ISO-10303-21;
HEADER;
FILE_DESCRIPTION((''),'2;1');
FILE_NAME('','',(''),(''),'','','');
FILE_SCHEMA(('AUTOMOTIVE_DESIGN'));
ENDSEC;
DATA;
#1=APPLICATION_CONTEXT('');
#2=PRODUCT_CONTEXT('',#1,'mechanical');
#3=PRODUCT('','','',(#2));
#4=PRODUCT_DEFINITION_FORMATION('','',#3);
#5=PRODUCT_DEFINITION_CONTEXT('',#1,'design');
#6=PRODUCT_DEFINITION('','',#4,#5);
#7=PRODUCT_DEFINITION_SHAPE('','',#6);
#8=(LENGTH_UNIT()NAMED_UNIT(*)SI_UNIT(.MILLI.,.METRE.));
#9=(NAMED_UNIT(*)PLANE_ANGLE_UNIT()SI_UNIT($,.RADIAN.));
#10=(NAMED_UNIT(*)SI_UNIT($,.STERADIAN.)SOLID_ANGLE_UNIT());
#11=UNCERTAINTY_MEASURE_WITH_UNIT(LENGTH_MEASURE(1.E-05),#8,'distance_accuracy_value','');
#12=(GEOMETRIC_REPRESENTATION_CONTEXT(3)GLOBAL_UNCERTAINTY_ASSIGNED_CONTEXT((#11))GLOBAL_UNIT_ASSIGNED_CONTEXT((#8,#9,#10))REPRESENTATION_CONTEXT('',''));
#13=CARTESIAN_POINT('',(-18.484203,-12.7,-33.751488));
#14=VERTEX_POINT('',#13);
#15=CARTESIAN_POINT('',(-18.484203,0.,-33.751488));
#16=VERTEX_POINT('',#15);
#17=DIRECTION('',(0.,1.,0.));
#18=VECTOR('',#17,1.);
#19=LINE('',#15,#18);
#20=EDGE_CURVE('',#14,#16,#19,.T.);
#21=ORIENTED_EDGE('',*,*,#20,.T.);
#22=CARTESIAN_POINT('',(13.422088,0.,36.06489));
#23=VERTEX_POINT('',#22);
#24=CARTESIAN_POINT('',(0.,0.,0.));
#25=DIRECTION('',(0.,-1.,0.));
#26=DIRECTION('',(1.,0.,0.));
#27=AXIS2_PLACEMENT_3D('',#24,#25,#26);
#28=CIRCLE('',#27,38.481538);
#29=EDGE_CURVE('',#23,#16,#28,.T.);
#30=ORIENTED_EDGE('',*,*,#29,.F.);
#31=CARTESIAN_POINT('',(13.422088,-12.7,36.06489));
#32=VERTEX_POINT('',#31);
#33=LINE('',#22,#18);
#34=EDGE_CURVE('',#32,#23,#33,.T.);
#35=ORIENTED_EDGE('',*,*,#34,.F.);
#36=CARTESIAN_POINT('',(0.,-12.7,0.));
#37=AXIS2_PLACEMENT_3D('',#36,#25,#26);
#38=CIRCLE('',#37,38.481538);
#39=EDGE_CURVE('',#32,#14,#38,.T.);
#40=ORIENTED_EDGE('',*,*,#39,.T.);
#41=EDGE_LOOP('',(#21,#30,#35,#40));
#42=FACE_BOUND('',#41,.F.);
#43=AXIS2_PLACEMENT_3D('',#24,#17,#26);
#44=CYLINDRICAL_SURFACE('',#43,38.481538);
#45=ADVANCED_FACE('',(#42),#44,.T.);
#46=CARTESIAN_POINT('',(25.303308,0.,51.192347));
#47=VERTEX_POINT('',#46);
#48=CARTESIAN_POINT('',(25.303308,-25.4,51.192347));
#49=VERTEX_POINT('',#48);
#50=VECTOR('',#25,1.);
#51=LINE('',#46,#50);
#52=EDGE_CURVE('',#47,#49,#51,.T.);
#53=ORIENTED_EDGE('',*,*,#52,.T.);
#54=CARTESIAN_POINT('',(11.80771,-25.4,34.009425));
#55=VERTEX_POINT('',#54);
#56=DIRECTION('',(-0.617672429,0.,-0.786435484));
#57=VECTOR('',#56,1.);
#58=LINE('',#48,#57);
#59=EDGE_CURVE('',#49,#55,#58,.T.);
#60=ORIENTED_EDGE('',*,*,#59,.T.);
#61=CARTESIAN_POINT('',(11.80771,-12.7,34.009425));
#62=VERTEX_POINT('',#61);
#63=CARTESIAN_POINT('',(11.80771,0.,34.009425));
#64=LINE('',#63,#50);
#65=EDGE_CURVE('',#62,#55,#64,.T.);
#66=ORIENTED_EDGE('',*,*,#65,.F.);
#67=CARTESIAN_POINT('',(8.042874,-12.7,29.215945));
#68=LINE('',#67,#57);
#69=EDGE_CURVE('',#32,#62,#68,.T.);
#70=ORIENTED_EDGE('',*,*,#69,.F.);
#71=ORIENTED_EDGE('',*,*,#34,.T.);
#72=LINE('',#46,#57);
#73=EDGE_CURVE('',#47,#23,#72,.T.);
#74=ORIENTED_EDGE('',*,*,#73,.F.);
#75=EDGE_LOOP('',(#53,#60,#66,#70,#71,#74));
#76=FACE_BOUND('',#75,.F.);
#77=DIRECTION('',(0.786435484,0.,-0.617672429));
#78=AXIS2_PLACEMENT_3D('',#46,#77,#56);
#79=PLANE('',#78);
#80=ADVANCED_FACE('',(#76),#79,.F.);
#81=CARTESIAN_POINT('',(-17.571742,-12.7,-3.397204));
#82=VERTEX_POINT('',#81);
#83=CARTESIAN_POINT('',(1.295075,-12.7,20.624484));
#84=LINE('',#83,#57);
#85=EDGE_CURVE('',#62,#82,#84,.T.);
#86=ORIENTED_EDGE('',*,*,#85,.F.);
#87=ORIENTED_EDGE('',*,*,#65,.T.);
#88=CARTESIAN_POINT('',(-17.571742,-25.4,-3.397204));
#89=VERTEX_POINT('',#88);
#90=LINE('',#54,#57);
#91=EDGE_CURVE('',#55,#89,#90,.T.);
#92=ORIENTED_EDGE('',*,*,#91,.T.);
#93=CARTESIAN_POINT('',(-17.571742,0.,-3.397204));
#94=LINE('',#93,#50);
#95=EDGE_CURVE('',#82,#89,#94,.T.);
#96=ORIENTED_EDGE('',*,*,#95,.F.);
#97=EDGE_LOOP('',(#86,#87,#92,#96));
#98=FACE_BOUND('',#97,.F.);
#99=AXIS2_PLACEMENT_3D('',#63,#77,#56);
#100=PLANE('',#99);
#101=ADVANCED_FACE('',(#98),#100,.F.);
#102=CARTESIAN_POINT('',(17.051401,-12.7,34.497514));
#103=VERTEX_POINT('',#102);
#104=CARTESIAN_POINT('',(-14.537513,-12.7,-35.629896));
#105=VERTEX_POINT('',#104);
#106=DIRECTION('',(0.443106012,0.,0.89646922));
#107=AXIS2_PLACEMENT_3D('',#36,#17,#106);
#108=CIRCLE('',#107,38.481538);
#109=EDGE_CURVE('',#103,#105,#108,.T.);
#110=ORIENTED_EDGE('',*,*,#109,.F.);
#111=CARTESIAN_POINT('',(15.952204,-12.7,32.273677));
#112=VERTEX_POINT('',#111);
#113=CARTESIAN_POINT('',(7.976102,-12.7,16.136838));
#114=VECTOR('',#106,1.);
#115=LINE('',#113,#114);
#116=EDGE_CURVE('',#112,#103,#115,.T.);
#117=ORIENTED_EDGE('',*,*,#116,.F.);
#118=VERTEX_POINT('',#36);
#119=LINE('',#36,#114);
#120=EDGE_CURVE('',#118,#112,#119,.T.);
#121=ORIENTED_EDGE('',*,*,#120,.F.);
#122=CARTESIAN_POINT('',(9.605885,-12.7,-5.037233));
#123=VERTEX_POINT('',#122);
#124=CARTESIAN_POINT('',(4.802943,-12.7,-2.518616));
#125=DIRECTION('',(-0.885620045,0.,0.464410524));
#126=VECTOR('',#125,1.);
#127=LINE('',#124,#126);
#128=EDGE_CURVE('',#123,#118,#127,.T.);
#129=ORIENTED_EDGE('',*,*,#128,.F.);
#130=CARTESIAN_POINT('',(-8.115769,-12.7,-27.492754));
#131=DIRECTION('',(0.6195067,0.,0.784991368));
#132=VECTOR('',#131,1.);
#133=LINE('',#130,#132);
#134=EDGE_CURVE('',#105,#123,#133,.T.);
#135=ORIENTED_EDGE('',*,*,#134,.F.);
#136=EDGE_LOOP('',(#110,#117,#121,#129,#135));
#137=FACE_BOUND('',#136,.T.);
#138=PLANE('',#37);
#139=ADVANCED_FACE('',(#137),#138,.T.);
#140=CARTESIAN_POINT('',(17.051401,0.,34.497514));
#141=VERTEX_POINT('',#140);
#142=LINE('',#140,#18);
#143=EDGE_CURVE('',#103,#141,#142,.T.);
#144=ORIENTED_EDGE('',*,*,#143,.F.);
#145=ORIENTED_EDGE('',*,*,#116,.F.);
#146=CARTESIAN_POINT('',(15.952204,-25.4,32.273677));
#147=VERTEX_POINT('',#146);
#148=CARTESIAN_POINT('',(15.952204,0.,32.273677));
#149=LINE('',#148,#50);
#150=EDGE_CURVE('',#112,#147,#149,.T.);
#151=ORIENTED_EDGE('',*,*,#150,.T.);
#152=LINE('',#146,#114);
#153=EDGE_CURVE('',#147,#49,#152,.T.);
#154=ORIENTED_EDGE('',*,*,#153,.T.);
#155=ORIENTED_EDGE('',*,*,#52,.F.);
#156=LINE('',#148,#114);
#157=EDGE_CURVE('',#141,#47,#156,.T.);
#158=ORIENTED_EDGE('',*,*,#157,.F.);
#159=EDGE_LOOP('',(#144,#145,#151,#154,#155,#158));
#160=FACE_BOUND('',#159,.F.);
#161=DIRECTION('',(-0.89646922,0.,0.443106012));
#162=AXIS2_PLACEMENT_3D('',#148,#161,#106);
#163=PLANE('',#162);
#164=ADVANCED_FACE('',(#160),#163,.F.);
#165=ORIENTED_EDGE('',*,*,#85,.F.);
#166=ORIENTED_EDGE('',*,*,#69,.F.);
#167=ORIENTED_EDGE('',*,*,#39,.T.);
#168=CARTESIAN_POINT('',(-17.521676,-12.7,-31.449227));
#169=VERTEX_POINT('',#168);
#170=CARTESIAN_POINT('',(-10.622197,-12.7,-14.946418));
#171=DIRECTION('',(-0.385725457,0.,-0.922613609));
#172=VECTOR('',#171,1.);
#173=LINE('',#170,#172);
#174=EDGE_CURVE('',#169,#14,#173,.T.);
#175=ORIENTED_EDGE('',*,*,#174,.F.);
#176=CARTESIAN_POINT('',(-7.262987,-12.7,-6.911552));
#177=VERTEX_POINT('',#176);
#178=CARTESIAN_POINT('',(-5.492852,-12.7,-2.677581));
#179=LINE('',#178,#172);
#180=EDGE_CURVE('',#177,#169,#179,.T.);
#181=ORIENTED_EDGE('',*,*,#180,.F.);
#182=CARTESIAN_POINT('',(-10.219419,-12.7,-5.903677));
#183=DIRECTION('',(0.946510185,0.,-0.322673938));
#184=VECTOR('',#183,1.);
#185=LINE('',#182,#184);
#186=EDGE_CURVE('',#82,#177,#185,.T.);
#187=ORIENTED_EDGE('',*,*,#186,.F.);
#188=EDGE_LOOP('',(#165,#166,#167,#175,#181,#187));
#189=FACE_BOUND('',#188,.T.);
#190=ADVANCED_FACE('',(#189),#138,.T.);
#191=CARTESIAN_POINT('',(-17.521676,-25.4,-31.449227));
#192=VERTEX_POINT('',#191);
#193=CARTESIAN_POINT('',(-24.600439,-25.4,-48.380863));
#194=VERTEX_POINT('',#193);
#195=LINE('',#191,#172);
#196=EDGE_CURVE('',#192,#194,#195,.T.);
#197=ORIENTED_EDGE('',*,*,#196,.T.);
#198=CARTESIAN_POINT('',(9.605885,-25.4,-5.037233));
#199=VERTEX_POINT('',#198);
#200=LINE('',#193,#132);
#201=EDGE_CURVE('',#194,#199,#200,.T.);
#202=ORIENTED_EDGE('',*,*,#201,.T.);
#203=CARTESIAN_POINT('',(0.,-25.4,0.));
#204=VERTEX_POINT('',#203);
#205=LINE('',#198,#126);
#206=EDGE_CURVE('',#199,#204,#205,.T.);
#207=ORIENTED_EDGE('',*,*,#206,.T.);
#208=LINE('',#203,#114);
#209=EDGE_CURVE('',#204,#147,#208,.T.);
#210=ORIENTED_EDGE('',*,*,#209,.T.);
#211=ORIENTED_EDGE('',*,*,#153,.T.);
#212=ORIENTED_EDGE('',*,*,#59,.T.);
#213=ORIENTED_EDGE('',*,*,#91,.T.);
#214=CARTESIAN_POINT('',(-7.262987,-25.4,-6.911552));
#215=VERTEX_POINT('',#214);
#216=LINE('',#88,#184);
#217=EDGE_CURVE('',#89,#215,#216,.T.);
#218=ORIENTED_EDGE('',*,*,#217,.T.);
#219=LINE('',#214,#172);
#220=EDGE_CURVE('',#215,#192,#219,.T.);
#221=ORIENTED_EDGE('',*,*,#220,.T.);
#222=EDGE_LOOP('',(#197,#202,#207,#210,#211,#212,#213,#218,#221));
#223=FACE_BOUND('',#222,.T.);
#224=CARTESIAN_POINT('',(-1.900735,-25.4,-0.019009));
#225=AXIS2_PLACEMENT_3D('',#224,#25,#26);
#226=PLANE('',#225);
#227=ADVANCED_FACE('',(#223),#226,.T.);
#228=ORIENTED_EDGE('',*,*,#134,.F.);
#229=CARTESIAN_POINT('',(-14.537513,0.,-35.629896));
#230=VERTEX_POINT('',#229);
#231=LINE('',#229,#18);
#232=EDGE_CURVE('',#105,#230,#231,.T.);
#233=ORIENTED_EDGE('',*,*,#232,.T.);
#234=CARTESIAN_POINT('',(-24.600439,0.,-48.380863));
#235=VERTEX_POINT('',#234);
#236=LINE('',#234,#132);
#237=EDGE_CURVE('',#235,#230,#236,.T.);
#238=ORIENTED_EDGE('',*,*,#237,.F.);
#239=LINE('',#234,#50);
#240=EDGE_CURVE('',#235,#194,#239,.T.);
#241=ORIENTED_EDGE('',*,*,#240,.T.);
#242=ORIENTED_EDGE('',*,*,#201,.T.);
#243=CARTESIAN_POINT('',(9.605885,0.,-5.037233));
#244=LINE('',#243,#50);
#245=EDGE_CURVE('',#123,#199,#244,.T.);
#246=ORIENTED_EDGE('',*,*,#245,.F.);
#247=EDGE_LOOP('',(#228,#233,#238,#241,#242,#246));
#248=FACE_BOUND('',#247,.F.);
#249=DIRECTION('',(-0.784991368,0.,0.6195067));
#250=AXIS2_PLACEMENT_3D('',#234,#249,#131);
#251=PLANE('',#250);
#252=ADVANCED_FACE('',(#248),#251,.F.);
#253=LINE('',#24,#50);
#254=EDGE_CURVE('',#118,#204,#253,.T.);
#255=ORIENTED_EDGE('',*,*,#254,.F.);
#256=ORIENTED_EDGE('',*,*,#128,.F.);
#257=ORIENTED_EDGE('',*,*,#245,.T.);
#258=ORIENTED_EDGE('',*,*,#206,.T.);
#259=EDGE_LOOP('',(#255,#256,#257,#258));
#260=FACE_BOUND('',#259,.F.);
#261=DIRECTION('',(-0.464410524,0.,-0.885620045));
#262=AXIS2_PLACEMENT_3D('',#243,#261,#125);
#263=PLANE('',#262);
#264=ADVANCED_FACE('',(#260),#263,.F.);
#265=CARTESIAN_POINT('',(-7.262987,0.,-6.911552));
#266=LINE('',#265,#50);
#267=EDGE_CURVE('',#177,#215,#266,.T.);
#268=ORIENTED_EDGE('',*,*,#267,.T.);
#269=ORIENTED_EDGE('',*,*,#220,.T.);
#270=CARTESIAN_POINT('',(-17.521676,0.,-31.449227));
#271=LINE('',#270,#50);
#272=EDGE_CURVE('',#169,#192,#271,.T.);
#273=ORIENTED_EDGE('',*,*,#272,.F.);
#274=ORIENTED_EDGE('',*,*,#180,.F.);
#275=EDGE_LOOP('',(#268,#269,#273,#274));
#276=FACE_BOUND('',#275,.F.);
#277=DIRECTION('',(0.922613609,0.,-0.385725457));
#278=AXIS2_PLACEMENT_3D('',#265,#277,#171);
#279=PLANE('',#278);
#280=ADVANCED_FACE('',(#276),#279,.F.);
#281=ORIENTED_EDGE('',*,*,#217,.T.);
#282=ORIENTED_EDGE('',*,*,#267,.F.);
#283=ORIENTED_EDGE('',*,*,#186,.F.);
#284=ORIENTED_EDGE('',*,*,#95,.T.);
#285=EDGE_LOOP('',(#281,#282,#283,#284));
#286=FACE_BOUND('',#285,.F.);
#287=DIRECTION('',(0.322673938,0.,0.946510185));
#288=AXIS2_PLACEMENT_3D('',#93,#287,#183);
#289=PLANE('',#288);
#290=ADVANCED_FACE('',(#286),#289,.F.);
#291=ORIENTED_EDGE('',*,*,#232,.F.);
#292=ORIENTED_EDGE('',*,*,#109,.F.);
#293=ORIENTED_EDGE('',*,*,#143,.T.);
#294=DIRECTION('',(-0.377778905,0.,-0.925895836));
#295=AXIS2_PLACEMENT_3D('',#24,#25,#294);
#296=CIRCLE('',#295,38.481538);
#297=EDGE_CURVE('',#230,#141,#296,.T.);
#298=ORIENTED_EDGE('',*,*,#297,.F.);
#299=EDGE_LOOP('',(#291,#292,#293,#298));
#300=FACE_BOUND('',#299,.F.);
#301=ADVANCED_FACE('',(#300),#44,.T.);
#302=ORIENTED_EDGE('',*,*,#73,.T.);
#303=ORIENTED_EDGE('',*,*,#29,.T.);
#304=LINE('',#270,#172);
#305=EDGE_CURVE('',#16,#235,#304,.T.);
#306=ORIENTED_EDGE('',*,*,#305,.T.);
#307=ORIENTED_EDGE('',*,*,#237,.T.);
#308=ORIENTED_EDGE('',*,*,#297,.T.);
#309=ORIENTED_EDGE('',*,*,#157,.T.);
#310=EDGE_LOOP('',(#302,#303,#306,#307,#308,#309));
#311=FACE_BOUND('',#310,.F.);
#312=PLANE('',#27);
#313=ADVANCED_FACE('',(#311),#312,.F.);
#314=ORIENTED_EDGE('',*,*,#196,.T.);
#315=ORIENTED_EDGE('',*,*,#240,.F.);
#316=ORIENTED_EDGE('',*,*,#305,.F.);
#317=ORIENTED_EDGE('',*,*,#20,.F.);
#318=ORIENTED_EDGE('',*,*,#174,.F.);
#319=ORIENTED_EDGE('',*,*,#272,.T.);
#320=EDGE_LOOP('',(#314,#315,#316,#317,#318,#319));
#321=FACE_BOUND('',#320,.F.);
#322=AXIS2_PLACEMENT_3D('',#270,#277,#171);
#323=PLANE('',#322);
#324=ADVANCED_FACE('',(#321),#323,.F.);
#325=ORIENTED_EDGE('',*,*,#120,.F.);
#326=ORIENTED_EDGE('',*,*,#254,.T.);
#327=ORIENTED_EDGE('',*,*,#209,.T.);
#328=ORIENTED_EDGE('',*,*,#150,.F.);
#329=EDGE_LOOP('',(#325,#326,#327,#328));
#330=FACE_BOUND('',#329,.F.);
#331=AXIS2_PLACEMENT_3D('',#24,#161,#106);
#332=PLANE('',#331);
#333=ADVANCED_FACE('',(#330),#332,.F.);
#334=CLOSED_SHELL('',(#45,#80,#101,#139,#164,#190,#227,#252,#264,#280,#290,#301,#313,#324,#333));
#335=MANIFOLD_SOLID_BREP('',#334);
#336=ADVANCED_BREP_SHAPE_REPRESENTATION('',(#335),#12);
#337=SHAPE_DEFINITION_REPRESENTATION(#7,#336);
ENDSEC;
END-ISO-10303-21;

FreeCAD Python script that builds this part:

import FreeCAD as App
import Part
import Sketcher

V = App.Vector
Q = App.Units.Quantity

doc = App.newDocument("Part")
body = doc.addObject("PartDesign::Body", "Body")

# Sketch on XZ plane
sketch1 = body.newObject("Sketcher::SketchObject", "Sketch")
sketch1.AttachmentSupport = (doc.getObject("XZ_Plane"), [""])
sketch1.MapMode = "FlatFace"
sketch1.addGeometry([
    Part.LineSegment(V(0, 0, 0), V(15.952204, 32.273677, 0)),  # 0
    Part.LineSegment(V(15.952204, 32.273677, 0), V(25.303308, 51.192347, 0)),  # 1
    Part.LineSegment(V(25.303308, 51.192347, 0), V(11.80771, 34.009425, 0)),  # 2
    Part.LineSegment(V(11.80771, 34.009425, 0), V(-17.571742, -3.397204, 0)),  # 3
    Part.LineSegment(V(-17.571742, -3.397204, 0), V(-7.262987, -6.911552, 0)),  # 4
    Part.LineSegment(V(-7.262987, -6.911552, 0), V(-17.521676, -31.449227, 0)),  # 5
    Part.LineSegment(V(-17.521676, -31.449227, 0), V(-24.600439, -48.380863, 0)),  # 6
    Part.LineSegment(V(-24.600439, -48.380863, 0), V(9.605885, -5.037233, 0)),  # 7
    Part.LineSegment(V(9.605885, -5.037233, 0), V(0, 0, 0)),  # 8
], False)
sketch1.addConstraint([
    Sketcher.Constraint("Coincident", 0, 2, 1, 1),
    Sketcher.Constraint("Coincident", 1, 2, 2, 1),
    Sketcher.Constraint("Coincident", 2, 2, 3, 1),
    Sketcher.Constraint("Coincident", 3, 2, 4, 1),
    Sketcher.Constraint("Coincident", 4, 2, 5, 1),
    Sketcher.Constraint("Coincident", 5, 2, 6, 1),
    Sketcher.Constraint("Coincident", 6, 2, 7, 1),
    Sketcher.Constraint("Coincident", 7, 2, 8, 1),
    Sketcher.Constraint("Coincident", 8, 2, 0, 1),
    Sketcher.Constraint("Coincident", 8, 2, -1, 1),
    Sketcher.Constraint("Parallel", 0, 1),
    Sketcher.Constraint("Parallel", 2, 3),
    Sketcher.Constraint("Parallel", 5, 6),
    Sketcher.Constraint("DistanceY", 6, 2, 5, 2, Q("0.6665998 in")),
    Sketcher.Constraint("DistanceY", 4, 2, 1, 2, 58.103899),
    Sketcher.Constraint("Distance", 2, 21.849118),
    Sketcher.Constraint("Distance", 4, 10.89133),
    Sketcher.Constraint("Distance", 5, 26.595831),
    Sketcher.Constraint("Distance", 8, 10.846509),
    Sketcher.Constraint("DistanceX", -1, 1, 2, 2, 11.80771),
    Sketcher.Constraint("DistanceX", 3, 2, -1, 1, 17.571742),
    Sketcher.Constraint("DistanceX", 6, 2, -1, 1, 24.600439),
    Sketcher.Constraint("DistanceY", 0, 2, 1, 2, 18.91867),
    Sketcher.Constraint("DistanceY", 0, 2, 2, 2, 1.735749),
    Sketcher.Constraint("DistanceX", 4, 2, 0, 2, 23.215191),
    Sketcher.Constraint("DistanceY", 4, 2, 7, 2, 1.874319),
])
pad1 = body.newObject("PartDesign::Pad", "Pad")
pad1.Profile = sketch1
pad1.Length = Q("1 in")

# Sketch on XZ plane
sketch2 = body.newObject("Sketcher::SketchObject", "Sketch001")
sketch2.AttachmentSupport = (doc.getObject("XZ_Plane"), [""])
sketch2.MapMode = "FlatFace"
sketch2.addGeometry(Part.Circle(V(0, 0, 0), V(0, 0, 1), 38.481538), False)
sketch2.addConstraint([
    Sketcher.Constraint("Coincident", 0, 3, -1, 1),
    Sketcher.Constraint("Diameter", 0, 76.963075),
])
pad2 = body.newObject("PartDesign::Pad", "Pad001")
pad2.Profile = sketch2
pad2.Length = Q("0.5 in")

doc.recompute()
